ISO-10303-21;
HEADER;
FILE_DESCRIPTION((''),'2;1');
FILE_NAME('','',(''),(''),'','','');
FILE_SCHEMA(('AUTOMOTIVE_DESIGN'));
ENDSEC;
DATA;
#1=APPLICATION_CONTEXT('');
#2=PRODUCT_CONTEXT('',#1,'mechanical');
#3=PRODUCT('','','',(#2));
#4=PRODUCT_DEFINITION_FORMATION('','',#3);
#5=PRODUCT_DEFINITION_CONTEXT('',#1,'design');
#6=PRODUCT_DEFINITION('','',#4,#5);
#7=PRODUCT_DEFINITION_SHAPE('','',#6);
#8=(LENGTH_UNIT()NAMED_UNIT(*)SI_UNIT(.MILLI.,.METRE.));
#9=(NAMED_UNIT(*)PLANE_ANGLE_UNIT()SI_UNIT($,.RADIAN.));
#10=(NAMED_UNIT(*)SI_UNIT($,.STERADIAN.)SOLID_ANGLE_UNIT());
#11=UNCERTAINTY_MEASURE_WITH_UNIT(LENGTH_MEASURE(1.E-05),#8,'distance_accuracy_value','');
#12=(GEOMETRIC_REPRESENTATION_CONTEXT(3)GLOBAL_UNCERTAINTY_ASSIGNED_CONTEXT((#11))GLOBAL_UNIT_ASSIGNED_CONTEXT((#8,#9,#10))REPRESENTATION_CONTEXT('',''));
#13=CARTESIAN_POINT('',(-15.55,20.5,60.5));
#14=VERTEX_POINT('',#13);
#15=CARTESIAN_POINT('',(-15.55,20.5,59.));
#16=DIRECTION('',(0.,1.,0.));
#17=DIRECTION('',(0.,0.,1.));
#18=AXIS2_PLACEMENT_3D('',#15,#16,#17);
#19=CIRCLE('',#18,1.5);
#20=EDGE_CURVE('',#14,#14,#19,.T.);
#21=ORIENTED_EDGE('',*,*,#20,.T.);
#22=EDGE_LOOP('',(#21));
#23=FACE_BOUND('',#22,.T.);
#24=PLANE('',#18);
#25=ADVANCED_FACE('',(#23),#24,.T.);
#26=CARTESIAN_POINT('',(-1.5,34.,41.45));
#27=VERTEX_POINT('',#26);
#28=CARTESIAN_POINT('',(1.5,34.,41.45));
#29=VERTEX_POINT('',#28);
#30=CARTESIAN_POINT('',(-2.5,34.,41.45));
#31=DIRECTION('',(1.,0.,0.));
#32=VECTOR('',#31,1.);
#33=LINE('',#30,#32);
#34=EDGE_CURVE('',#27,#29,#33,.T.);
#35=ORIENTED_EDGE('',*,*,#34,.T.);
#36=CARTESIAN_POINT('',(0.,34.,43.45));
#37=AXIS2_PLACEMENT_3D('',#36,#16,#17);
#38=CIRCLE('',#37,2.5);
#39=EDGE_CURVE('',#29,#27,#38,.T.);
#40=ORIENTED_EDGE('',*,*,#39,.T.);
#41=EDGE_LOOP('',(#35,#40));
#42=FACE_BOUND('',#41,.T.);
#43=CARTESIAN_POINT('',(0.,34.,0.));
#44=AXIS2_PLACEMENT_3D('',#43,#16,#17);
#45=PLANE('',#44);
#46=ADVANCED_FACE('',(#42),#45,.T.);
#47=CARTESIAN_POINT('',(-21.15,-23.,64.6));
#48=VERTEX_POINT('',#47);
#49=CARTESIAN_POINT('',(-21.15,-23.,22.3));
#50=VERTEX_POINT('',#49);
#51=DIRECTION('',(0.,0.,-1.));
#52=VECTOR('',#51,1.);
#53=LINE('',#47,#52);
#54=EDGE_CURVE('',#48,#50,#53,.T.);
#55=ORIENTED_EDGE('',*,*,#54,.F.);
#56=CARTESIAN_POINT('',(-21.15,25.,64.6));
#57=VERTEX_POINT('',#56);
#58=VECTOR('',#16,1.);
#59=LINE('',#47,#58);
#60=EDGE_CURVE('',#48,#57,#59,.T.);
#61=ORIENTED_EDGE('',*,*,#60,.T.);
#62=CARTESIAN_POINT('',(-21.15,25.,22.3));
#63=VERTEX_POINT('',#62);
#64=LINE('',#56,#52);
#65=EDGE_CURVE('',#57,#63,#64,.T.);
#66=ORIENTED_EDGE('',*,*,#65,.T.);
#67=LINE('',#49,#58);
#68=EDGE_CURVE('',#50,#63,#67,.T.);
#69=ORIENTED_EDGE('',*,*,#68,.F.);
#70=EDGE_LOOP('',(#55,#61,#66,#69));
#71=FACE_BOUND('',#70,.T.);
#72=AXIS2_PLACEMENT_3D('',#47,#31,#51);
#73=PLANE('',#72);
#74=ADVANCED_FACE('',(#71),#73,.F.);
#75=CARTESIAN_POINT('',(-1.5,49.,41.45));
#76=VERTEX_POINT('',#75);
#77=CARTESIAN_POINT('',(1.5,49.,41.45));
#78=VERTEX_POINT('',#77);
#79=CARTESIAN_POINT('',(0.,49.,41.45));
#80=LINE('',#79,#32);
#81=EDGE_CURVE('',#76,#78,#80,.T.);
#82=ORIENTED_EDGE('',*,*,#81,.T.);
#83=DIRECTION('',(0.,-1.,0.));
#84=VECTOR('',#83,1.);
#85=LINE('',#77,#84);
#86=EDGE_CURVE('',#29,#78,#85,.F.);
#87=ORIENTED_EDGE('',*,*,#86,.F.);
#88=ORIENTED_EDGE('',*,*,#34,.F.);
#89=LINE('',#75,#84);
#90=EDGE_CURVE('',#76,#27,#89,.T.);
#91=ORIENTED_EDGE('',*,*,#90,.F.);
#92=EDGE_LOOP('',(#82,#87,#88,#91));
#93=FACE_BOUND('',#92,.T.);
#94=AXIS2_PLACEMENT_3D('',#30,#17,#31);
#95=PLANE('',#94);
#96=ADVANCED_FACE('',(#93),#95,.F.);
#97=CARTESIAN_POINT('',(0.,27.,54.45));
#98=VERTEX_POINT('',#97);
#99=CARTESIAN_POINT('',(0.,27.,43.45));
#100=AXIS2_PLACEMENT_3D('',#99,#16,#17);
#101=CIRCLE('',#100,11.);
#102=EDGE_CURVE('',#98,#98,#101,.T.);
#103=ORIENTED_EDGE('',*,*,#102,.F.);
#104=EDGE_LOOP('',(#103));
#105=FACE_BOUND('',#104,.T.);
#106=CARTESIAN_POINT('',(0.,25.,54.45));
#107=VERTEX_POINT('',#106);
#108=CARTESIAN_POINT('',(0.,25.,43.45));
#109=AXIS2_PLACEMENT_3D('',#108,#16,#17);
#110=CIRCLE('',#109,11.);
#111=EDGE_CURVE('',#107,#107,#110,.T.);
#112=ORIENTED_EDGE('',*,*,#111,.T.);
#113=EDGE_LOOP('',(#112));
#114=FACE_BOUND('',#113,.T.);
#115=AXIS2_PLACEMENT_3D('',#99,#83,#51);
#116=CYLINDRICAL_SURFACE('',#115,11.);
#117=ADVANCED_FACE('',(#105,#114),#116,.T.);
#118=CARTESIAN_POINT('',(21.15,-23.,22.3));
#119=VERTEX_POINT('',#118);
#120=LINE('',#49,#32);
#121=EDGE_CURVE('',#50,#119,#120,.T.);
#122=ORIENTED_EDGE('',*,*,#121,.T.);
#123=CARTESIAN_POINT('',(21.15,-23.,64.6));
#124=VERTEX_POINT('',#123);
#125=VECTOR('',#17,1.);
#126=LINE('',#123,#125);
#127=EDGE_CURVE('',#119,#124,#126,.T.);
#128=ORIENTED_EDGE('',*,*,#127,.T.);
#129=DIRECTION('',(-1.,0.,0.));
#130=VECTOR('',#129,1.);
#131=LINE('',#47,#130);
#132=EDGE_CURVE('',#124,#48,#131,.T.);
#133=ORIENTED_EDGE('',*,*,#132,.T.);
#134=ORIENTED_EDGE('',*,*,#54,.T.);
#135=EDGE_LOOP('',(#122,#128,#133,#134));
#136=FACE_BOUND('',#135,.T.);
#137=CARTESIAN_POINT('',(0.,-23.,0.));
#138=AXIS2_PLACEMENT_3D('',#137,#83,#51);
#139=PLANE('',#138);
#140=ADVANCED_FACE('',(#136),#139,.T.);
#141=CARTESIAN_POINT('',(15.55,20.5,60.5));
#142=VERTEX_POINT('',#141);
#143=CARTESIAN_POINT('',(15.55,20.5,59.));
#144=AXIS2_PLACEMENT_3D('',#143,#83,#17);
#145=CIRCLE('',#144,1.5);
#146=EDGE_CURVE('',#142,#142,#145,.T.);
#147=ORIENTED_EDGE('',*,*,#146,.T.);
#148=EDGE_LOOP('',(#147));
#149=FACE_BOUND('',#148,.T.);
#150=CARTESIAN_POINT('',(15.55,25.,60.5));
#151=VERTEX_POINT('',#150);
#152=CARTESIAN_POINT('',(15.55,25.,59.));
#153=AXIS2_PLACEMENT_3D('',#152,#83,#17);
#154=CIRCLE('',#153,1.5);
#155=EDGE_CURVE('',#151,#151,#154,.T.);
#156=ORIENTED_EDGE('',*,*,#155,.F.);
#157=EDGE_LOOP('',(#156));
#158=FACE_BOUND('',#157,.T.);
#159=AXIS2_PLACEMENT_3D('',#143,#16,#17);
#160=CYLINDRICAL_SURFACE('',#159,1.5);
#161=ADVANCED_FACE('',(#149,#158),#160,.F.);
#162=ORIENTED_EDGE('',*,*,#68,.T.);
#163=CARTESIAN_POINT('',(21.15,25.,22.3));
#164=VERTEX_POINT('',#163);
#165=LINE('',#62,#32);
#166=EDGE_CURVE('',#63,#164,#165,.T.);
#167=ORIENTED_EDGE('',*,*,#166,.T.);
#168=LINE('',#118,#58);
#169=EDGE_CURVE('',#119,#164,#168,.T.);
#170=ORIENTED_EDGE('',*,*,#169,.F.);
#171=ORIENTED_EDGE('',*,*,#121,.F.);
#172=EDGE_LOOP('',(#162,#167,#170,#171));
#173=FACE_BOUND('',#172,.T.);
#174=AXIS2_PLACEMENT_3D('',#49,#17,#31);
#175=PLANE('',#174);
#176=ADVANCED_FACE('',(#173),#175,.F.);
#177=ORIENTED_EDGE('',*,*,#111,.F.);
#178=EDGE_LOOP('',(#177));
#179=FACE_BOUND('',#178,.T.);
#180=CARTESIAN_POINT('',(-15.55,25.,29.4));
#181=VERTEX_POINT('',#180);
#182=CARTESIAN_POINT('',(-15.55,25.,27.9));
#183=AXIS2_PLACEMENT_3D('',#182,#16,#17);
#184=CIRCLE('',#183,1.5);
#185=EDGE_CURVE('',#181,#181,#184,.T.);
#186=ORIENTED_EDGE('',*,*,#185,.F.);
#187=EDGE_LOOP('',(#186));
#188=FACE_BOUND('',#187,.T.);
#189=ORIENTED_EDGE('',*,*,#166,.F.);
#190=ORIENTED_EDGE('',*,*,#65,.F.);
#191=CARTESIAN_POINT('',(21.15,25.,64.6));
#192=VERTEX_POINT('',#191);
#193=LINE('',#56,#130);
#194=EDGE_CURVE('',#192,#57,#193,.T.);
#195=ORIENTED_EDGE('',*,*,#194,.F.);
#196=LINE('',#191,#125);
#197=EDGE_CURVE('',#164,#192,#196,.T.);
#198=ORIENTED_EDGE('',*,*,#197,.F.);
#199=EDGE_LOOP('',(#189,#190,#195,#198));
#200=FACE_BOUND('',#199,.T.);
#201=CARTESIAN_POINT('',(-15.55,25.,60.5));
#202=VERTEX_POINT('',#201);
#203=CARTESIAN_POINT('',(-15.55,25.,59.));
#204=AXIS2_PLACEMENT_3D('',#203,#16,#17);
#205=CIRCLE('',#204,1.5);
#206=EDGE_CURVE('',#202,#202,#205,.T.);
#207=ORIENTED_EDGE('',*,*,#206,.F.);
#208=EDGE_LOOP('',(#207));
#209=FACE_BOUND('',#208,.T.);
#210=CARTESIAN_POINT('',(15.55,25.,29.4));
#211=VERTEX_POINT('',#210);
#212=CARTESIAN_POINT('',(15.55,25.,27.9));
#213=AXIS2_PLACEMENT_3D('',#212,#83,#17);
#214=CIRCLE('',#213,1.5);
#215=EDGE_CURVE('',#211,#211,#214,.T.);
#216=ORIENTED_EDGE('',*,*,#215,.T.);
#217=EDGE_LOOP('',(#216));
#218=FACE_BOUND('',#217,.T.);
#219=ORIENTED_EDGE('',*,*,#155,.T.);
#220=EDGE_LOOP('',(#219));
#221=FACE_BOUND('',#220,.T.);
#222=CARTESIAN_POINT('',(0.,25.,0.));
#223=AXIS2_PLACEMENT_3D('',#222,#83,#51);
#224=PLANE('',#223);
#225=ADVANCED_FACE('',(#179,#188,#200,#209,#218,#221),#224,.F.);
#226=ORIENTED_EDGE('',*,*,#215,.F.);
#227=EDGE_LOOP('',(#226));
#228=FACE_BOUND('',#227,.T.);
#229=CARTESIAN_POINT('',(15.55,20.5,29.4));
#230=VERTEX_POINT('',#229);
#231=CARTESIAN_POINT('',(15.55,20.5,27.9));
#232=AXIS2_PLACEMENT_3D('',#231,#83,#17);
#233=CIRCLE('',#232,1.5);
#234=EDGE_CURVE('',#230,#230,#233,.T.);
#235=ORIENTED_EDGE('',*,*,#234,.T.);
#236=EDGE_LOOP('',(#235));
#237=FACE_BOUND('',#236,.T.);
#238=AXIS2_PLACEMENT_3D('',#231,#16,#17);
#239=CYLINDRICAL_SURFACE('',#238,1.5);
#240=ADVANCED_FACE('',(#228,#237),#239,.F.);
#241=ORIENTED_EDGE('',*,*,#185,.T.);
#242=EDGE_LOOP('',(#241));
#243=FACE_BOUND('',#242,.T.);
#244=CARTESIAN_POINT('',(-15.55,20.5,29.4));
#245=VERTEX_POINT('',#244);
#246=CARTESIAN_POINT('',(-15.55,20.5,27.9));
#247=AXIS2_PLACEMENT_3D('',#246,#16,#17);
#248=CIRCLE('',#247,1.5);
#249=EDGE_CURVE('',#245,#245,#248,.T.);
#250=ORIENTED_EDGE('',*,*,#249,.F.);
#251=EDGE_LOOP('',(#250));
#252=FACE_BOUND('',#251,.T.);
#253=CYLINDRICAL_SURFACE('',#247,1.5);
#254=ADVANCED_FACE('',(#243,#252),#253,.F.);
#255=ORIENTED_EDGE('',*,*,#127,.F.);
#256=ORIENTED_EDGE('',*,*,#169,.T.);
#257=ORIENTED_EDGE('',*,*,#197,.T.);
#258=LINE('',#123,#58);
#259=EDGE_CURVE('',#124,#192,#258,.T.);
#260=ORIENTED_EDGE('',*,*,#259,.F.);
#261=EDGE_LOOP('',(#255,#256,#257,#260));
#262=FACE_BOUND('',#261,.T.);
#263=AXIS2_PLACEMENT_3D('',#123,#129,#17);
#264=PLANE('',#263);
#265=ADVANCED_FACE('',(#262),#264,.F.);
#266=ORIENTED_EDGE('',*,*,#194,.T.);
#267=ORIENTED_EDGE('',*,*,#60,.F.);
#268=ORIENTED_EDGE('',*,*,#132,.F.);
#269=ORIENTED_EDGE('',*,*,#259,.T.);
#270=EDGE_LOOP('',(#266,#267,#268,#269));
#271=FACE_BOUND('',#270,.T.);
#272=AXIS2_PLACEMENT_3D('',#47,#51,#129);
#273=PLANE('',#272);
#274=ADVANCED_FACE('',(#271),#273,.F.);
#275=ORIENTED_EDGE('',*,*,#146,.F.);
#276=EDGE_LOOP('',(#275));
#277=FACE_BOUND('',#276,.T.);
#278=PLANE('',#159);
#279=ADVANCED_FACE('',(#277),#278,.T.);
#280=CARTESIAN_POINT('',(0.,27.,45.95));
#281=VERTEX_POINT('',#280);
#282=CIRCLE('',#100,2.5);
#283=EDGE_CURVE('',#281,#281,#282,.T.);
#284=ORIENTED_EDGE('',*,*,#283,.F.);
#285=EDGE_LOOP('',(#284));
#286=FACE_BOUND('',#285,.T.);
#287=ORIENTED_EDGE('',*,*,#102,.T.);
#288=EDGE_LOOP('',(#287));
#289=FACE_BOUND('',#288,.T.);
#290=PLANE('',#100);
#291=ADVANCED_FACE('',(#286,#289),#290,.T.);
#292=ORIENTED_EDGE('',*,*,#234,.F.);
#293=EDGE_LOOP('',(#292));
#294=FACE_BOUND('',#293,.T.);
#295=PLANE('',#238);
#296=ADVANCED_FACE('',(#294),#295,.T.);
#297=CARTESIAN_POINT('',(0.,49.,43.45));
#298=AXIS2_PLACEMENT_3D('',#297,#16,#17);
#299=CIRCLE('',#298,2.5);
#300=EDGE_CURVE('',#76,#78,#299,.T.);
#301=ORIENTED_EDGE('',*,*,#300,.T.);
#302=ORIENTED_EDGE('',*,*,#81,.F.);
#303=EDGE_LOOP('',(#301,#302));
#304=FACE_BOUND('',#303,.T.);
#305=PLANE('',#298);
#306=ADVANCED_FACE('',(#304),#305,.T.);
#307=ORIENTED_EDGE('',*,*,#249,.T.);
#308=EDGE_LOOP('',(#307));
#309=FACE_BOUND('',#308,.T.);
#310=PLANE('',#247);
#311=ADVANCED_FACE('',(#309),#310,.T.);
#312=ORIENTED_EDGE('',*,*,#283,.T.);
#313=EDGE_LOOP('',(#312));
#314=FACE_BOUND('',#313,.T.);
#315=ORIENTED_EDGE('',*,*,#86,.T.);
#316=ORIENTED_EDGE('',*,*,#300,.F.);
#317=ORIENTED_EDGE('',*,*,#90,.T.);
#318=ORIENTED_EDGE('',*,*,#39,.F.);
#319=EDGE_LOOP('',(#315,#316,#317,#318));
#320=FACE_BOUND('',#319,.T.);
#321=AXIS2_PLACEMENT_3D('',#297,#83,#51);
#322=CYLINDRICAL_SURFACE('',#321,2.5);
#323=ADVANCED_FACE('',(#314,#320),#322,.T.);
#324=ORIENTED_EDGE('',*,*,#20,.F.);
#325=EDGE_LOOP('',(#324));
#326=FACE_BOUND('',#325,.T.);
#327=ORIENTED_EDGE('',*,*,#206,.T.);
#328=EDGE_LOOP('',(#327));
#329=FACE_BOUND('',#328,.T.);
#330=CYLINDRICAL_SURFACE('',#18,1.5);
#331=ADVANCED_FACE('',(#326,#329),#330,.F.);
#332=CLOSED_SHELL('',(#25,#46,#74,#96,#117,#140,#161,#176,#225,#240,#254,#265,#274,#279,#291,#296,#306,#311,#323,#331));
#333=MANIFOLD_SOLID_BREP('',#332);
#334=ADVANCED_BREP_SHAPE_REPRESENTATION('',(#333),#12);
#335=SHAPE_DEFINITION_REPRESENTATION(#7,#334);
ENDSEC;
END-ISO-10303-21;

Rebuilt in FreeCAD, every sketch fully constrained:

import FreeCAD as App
import Part
import Sketcher
Q = App.Units.Quantity


def add_polygon(sketch, points):
    """Adds a closed chain of lines whose ends are joined by coincident constraints."""
    first, n = sketch.GeometryCount, len(points)
    for a, b in zip(points, points[1:] + points[:1]):
        sketch.addGeometry(Part.LineSegment(App.Vector(*a, 0), App.Vector(*b, 0)), False)
    for i in range(n):
        sketch.addConstraint(Sketcher.Constraint("Coincident", first + i, 2, first + (i + 1) % n, 1))

doc = App.newDocument("Part")
body = doc.addObject("PartDesign::Body", "Body")

# Sketch on XZ plane
sketch1 = body.newObject("Sketcher::SketchObject", "Sketch")
sketch1.AttachmentSupport = (doc.getObject("XZ_Plane"), [""])
sketch1.MapMode = "FlatFace"
sketch1.AttachmentOffset = App.Placement(App.Vector(0, 0, -25), App.Rotation())
add_polygon(sketch1, [(-21.15, 64.6), (-21.15, 22.3), (21.15, 22.3), (21.15, 64.6)])  # lines 0-3
sketch1.addConstraint(Sketcher.Constraint("Vertical", 0))
sketch1.addConstraint(Sketcher.Constraint("Horizontal", 1))
sketch1.addConstraint(Sketcher.Constraint("Vertical", 2))
sketch1.addConstraint(Sketcher.Constraint("Horizontal", 3))
sketch1.addConstraint(Sketcher.Constraint("Equal", 3, 0))
sketch1.addConstraint(Sketcher.Constraint("DistanceX", 1, 1, 1, 2, Q("42.3 mm")))
sketch1.addConstraint(Sketcher.Constraint("DistanceY", -1, 1, 0, 2, Q("22.3 mm")))
sketch1.addConstraint(Sketcher.Constraint("DistanceX", 0, 2, -1, 1, Q("21.15 mm")))
pad1 = body.newObject("PartDesign::Pad", "Pad")
pad1.Profile = sketch1
pad1.Length = 48

# Sketch on XZ plane
sketch2 = body.newObject("Sketcher::SketchObject", "Sketch001")
sketch2.AttachmentSupport = (doc.getObject("XZ_Plane"), [""])
sketch2.MapMode = "FlatFace"
sketch2.AttachmentOffset = App.Placement(App.Vector(0, 0, -25), App.Rotation())
sketch2.addGeometry(Part.Circle(App.Vector(0, 43.45, 0), App.Vector(0, 0, 1), 11), False)
sketch2.addConstraint(Sketcher.Constraint("PointOnObject", 0, 3, -2))
sketch2.addConstraint(Sketcher.Constraint("Diameter", 0, Q("22 mm")))
sketch2.addConstraint(Sketcher.Constraint("DistanceY", -1, 1, 0, 3, Q("43.45 mm")))
pad2 = body.newObject("PartDesign::Pad", "Pad001")
pad2.Profile = sketch2
pad2.Length = 2
pad2.Reversed = True

# Sketch on XZ plane
sketch3 = body.newObject("Sketcher::SketchObject", "Sketch002")
sketch3.AttachmentSupport = (doc.getObject("XZ_Plane"), [""])
sketch3.MapMode = "FlatFace"
sketch3.AttachmentOffset = App.Placement(App.Vector(0, 0, -27), App.Rotation())
sketch3.addGeometry(Part.Circle(App.Vector(0, 43.45, 0), App.Vector(0, 0, 1), 2.5), False)
sketch3.addConstraint(Sketcher.Constraint("PointOnObject", 0, 3, -2))
sketch3.addConstraint(Sketcher.Constraint("Diameter", 0, Q("5 mm")))
sketch3.addConstraint(Sketcher.Constraint("DistanceY", -1, 1, 0, 3, Q("43.45 mm")))
pad3 = body.newObject("PartDesign::Pad", "Pad002")
pad3.Profile = sketch3
pad3.Length = 22
pad3.Reversed = True

# Sketch on XZ plane
sketch4 = body.newObject("Sketcher::SketchObject", "Sketch003")
sketch4.AttachmentSupport = (doc.getObject("XZ_Plane"), [""])
sketch4.MapMode = "FlatFace"
sketch4.AttachmentOffset = App.Placement(App.Vector(0, 0, -49), App.Rotation())
add_polygon(sketch4, [(-2.5, 40.95), (-2.5, 41.45), (2.5, 41.45), (2.5, 40.95)])  # lines 0-3
sketch4.addConstraint(Sketcher.Constraint("Vertical", 0))
sketch4.addConstraint(Sketcher.Constraint("Horizontal", 1))
sketch4.addConstraint(Sketcher.Constraint("Vertical", 2))
sketch4.addConstraint(Sketcher.Constraint("Horizontal", 3))
sketch4.addConstraint(Sketcher.Constraint("DistanceX", 1, 1, 1, 2, Q("5 mm")))
sketch4.addConstraint(Sketcher.Constraint("DistanceY", 0, 1, 0, 2, Q("0.5 mm")))
sketch4.addConstraint(Sketcher.Constraint("DistanceX", 0, 2, -1, 1, Q("2.5 mm")))
sketch4.addConstraint(Sketcher.Constraint("DistanceY", -1, 1, 0, 2, Q("41.45 mm")))
pocket1 = body.newObject("PartDesign::Pocket", "Pocket")
pocket1.Profile = sketch4
pocket1.Length = 15
pocket1.Reversed = True

# Sketch on XZ plane
sketch5 = body.newObject("Sketcher::SketchObject", "Sketch004")
sketch5.AttachmentSupport = (doc.getObject("XZ_Plane"), [""])
sketch5.MapMode = "FlatFace"
sketch5.AttachmentOffset = App.Placement(App.Vector(0, 0, -25), App.Rotation())
sketch5.addGeometry(Part.Circle(App.Vector(-15.55, 27.9, 0), App.Vector(0, 0, 1), 1.5), False)
sketch5.addGeometry(Part.Circle(App.Vector(-15.55, 59, 0), App.Vector(0, 0, 1), 1.5), False)
sketch5.addConstraint(Sketcher.Constraint("Equal", 0, 1))
sketch5.addConstraint(Sketcher.Constraint("Vertical", 0, 3, 1, 3))
sketch5.addConstraint(Sketcher.Constraint("Diameter", 0, Q("3 mm")))
sketch5.addConstraint(Sketcher.Constraint("DistanceY", -1, 1, 1, 3, Q("59 mm")))
sketch5.addConstraint(Sketcher.Constraint("DistanceY", -1, 1, 0, 3, Q("27.9 mm")))
sketch5.addConstraint(Sketcher.Constraint("DistanceX", 0, 3, -1, 1, Q("15.55 mm")))
pocket2 = body.newObject("PartDesign::Pocket", "Pocket001")
pocket2.Profile = sketch5
pocket2.Length = 4.5
pocket2.Reversed = True
doc.recompute()

mirrored = body.newObject("PartDesign::Mirrored", "Mirrored")
mirrored.Originals = [pocket2]
mirrored.MirrorPlane = (doc.getObject("YZ_Plane"), [""])
body.Tip = mirrored

doc.recompute()
